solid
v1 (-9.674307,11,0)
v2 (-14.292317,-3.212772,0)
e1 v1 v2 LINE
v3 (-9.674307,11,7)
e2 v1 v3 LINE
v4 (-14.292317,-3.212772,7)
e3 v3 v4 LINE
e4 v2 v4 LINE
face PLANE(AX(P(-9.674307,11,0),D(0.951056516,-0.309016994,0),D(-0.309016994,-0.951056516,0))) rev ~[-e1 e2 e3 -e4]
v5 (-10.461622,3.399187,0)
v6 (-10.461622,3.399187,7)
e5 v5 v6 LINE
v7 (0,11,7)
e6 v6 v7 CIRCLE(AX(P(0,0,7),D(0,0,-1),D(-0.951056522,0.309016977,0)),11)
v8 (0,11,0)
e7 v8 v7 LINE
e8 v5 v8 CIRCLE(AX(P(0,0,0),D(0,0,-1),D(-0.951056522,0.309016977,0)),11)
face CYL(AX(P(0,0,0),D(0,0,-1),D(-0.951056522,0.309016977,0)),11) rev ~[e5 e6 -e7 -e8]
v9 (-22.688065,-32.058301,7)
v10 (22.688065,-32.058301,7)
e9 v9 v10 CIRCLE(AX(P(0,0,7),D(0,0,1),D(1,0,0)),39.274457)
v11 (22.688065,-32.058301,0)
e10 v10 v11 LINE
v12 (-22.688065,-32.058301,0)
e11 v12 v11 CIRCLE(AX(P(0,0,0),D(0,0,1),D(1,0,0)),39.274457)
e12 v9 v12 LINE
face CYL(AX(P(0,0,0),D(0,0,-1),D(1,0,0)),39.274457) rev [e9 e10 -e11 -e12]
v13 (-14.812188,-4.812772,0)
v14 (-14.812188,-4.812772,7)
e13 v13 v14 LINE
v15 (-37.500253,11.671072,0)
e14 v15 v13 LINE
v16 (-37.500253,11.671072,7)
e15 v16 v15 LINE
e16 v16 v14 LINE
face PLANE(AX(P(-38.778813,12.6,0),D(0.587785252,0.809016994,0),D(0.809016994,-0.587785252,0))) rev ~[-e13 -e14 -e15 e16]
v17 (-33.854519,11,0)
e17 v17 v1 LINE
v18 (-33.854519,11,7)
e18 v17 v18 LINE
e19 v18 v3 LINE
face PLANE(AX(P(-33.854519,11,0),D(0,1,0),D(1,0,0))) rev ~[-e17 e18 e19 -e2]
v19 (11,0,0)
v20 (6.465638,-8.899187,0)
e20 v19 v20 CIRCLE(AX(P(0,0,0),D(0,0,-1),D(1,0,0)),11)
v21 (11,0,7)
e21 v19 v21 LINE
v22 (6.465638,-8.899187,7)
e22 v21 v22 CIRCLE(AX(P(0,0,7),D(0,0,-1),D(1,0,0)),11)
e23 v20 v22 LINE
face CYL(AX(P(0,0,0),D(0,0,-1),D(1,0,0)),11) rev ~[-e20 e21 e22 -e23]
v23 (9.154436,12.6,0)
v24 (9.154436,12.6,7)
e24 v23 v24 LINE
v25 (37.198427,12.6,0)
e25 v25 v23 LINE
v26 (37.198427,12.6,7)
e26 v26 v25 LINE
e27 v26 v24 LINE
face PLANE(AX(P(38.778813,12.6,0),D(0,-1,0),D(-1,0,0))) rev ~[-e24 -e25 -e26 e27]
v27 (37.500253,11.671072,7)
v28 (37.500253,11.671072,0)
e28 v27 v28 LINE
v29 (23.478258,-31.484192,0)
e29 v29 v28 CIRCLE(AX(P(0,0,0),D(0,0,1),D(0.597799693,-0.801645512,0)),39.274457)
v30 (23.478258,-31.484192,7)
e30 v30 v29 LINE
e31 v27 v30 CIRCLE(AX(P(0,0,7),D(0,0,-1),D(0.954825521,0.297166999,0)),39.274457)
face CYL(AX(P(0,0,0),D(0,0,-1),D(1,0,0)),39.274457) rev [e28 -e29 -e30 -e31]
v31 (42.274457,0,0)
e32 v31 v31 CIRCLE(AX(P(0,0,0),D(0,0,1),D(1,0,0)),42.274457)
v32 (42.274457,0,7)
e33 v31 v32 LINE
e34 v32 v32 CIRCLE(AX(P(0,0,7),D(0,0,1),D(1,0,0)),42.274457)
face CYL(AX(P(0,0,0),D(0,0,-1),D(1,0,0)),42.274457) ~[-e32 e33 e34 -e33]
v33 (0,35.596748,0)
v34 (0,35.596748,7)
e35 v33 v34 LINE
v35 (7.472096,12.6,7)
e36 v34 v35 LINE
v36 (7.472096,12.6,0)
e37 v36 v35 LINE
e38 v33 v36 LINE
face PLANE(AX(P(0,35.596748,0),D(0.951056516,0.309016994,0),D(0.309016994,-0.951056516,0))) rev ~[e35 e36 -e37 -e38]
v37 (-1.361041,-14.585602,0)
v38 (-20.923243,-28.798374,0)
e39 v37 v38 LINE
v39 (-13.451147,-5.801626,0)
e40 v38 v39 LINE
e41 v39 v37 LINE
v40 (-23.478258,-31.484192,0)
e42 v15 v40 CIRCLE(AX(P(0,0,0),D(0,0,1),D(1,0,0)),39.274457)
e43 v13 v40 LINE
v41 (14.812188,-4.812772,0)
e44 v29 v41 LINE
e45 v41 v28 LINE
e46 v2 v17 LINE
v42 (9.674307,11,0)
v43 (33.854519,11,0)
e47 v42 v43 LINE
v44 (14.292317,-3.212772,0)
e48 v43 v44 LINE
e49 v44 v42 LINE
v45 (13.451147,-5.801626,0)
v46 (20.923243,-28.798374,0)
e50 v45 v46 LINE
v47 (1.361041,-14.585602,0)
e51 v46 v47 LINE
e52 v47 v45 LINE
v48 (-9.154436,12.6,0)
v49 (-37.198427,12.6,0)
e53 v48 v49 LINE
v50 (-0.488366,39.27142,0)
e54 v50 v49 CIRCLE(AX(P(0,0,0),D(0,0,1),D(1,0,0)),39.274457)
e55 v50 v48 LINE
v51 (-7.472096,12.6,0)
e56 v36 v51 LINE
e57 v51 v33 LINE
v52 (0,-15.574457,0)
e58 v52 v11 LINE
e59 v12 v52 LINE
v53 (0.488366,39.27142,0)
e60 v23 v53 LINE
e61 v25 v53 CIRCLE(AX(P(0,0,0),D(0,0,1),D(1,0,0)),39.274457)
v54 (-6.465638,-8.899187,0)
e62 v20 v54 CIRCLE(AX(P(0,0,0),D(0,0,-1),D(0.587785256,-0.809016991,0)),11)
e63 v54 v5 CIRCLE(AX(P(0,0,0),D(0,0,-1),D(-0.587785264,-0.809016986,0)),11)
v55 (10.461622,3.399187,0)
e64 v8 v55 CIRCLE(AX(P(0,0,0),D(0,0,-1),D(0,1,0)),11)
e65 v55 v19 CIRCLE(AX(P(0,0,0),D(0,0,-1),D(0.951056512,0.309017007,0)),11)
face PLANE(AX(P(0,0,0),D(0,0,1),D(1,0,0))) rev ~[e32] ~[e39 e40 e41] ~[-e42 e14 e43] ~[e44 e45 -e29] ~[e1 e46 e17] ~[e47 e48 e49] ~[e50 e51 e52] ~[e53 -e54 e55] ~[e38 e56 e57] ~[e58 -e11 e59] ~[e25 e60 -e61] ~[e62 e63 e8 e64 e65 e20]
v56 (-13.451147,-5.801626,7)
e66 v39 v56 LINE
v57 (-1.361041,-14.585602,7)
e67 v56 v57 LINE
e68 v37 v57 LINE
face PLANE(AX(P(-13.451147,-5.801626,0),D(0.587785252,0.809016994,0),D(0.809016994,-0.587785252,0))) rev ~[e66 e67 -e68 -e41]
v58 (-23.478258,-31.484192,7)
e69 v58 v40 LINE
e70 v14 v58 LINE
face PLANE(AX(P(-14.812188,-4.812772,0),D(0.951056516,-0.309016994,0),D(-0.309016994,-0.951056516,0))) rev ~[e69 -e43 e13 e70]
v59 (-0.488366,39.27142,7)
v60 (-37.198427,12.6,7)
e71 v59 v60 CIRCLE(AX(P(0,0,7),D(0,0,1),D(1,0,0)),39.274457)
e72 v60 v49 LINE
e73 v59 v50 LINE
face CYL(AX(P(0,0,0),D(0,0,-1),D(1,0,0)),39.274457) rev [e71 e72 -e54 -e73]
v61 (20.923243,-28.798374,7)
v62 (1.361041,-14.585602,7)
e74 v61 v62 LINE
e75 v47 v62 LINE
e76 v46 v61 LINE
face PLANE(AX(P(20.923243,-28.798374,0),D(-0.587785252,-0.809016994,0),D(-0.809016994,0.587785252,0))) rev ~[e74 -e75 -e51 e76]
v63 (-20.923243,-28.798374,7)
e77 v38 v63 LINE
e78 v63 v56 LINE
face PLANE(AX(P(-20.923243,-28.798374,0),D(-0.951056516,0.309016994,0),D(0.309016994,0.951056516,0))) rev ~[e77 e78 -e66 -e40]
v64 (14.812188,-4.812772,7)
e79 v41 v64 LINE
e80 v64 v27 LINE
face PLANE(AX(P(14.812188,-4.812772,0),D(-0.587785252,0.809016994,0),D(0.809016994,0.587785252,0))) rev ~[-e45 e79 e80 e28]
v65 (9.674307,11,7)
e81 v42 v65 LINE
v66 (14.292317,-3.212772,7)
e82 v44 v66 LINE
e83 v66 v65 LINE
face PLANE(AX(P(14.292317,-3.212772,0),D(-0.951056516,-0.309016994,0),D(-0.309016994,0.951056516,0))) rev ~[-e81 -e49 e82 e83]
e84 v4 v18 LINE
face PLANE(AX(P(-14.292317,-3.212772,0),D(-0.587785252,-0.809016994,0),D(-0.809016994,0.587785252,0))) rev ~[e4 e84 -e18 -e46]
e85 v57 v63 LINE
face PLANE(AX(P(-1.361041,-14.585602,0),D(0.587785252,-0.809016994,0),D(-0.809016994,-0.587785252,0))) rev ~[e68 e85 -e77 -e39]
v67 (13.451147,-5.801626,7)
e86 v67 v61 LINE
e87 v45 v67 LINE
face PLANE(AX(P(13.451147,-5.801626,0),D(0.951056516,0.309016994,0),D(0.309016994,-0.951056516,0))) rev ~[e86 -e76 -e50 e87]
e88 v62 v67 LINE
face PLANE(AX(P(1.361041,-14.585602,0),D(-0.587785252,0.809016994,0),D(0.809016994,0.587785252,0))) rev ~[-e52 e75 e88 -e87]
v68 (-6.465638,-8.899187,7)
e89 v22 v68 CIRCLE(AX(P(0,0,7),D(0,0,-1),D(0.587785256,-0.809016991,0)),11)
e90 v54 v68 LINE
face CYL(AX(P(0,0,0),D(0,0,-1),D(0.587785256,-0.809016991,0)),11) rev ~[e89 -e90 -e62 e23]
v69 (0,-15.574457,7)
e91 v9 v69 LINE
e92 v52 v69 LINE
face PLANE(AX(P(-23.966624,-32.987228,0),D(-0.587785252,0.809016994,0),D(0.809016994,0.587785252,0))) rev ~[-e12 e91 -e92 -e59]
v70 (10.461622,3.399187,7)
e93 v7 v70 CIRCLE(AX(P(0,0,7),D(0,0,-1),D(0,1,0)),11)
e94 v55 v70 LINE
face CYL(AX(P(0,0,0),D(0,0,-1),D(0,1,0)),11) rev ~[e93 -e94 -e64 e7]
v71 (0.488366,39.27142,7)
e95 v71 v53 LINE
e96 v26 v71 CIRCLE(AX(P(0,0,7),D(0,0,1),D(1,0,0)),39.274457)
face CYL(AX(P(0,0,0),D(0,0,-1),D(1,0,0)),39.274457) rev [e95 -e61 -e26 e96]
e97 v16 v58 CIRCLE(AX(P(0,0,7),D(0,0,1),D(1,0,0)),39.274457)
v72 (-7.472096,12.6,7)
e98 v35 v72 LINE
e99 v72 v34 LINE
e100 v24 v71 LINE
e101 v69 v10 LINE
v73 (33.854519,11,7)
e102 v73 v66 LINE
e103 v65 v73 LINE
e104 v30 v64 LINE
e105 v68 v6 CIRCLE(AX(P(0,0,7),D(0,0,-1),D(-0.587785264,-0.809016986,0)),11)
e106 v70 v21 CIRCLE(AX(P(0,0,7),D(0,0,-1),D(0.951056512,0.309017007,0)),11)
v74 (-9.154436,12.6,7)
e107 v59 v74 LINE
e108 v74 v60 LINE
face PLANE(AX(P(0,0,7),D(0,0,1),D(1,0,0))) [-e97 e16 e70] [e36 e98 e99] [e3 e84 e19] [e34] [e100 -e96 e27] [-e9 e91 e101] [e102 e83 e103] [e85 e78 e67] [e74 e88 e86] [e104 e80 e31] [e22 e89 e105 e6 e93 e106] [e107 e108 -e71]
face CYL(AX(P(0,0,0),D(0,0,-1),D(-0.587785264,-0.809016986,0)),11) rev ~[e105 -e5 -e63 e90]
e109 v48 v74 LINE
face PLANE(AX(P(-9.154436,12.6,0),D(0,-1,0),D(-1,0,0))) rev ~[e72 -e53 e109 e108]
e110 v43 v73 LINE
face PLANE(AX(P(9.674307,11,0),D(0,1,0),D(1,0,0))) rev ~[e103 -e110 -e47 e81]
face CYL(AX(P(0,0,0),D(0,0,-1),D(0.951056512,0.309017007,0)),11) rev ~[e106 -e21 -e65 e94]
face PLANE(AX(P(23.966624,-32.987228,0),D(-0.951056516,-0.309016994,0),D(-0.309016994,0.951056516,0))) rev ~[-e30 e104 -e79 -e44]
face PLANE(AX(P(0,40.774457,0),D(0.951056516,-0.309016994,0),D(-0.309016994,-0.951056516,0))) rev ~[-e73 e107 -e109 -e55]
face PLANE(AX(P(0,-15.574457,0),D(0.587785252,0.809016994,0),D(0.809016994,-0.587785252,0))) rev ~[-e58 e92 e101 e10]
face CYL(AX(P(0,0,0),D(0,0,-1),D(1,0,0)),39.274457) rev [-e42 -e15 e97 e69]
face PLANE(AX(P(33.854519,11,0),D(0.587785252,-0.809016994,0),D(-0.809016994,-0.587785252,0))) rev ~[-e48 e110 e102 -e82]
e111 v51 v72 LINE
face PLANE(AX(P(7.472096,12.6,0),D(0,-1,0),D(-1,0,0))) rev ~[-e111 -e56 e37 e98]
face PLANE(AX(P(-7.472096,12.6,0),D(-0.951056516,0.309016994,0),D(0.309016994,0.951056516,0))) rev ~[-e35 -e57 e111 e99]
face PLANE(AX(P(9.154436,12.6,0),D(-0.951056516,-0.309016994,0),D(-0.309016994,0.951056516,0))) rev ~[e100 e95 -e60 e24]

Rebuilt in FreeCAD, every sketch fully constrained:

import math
import FreeCAD as App
import Part
import Sketcher

V = App.Vector

doc = App.newDocument("Part")
params = doc.addObject("Spreadsheet::Sheet", "Params")
for row, (alias, value) in enumerate([
    ("sketch1_radius", "11 mm"),
    ("pad1_length", "7 mm"),
], start=1):
    params.set(f"A{row}", alias)
    params.set(f"B{row}", "=" + value)
    params.setAlias(f"B{row}", alias)

body = doc.addObject("PartDesign::Body", "Body")

# Sketch on XY plane
sketch1 = doc.addObject("Sketcher::SketchObject", "Sketch")
body.addObject(sketch1)
sketch1.AttachmentSupport = (doc.XY_Plane, [""])
sketch1.MapMode = "FlatFace"
sketch1.addGeometry(Part.Circle(V(0, 0, 0), V(0, 0, 1), 42.274457), False)
sketch1.addGeometry(Part.ArcOfCircle(Part.Circle(V(0, 0, 0), V(0, 0, 1), 39.274457), math.radians(-53.287526), math.radians(17.287526)), False)
sketch1.addGeometry(Part.LineSegment(V(23.478258, -31.484192, 0), V(14.812188, -4.812772, 0)), False)
sketch1.addGeometry(Part.LineSegment(V(14.812188, -4.812772, 0), V(37.500253, 11.671072, 0)), False)
sketch1.addGeometry(Part.ArcOfCircle(Part.Circle(V(0, 0, 0), V(0, 0, 1), 39.274457), math.radians(18.712474), math.radians(89.287526)), False)
sketch1.addGeometry(Part.LineSegment(V(37.198427, 12.6, 0), V(9.154436, 12.6, 0)), False)
sketch1.addGeometry(Part.LineSegment(V(9.154436, 12.6, 0), V(0.488366, 39.27142, 0)), False)
sketch1.addGeometry(Part.ArcOfCircle(Part.Circle(V(0, 0, 0), V(0, 0, 1), 39.274457), math.radians(90.712474), math.radians(161.287526)), False)
sketch1.addGeometry(Part.LineSegment(V(-0.488366, 39.27142, 0), V(-9.154436, 12.6, 0)), False)
sketch1.addGeometry(Part.LineSegment(V(-9.154436, 12.6, 0), V(-37.198427, 12.6, 0)), False)
sketch1.addGeometry(Part.ArcOfCircle(Part.Circle(V(0, 0, 0), V(0, 0, 1), 39.274457), math.radians(162.712474), math.radians(233.287526)), False)
sketch1.addGeometry(Part.LineSegment(V(-37.500253, 11.671072, 0), V(-14.812188, -4.812772, 0)), False)
sketch1.addGeometry(Part.LineSegment(V(-14.812188, -4.812772, 0), V(-23.478258, -31.484192, 0)), False)
sketch1.addGeometry(Part.ArcOfCircle(Part.Circle(V(0, 0, 0), V(0, 0, 1), 39.274457), math.radians(-125.287526), math.radians(-54.712474)), False)
sketch1.addGeometry(Part.LineSegment(V(-22.688065, -32.058301, 0), V(0, -15.574457, 0)), False)
sketch1.addGeometry(Part.LineSegment(V(0, -15.574457, 0), V(22.688065, -32.058301, 0)), False)
sketch1.addGeometry(Part.LineSegment(V(7.472096, 12.6, 0), V(-7.472096, 12.6, 0)), False)
sketch1.addGeometry(Part.LineSegment(V(-7.472096, 12.6, 0), V(0, 35.596748, 0)), False)
sketch1.addGeometry(Part.LineSegment(V(0, 35.596748, 0), V(7.472096, 12.6, 0)), False)
sketch1.addGeometry(Part.LineSegment(V(-13.451147, -5.801626, 0), V(-1.361041, -14.585602, 0)), False)
sketch1.addGeometry(Part.LineSegment(V(-1.361041, -14.585602, 0), V(-20.923243, -28.798374, 0)), False)
sketch1.addGeometry(Part.LineSegment(V(-20.923243, -28.798374, 0), V(-13.451147, -5.801626, 0)), False)
sketch1.addGeometry(Part.LineSegment(V(20.923243, -28.798374, 0), V(1.361041, -14.585602, 0)), False)
sketch1.addGeometry(Part.LineSegment(V(1.361041, -14.585602, 0), V(13.451147, -5.801626, 0)), False)
sketch1.addGeometry(Part.LineSegment(V(13.451147, -5.801626, 0), V(20.923243, -28.798374, 0)), False)
sketch1.addGeometry(Part.ArcOfCircle(Part.Circle(V(0, 0, 0), V(0, 0, 1), 11), math.radians(162.000001), math.radians(233.999999)), False)
sketch1.addGeometry(Part.ArcOfCircle(Part.Circle(V(0, 0, 0), V(0, 0, 1), 11), math.radians(90), math.radians(162.000001)), False)
sketch1.addGeometry(Part.ArcOfCircle(Part.Circle(V(0, 0, 0), V(0, 0, 1), 11), math.radians(18.000001), math.radians(90)), False)
sketch1.addGeometry(Part.ArcOfCircle(Part.Circle(V(0, 0, 0), V(0, 0, 1), 11), math.radians(0), math.radians(18.000001)), False)
sketch1.addGeometry(Part.ArcOfCircle(Part.Circle(V(0, 0, 0), V(0, 0, 1), 11), math.radians(-54), math.radians(0)), False)
sketch1.addGeometry(Part.ArcOfCircle(Part.Circle(V(0, 0, 0), V(0, 0, 1), 11), math.radians(-126.000001), math.radians(-54)), False)
sketch1.addGeometry(Part.LineSegment(V(-33.854519, 11, 0), V(-9.674307, 11, 0)), False)
sketch1.addGeometry(Part.LineSegment(V(-9.674307, 11, 0), V(-14.292317, -3.212772, 0)), False)
sketch1.addGeometry(Part.LineSegment(V(-14.292317, -3.212772, 0), V(-33.854519, 11, 0)), False)
sketch1.addGeometry(Part.LineSegment(V(33.854519, 11, 0), V(14.292317, -3.212772, 0)), False)
sketch1.addGeometry(Part.LineSegment(V(14.292317, -3.212772, 0), V(9.674307, 11, 0)), False)
sketch1.addGeometry(Part.LineSegment(V(9.674307, 11, 0), V(33.854519, 11, 0)), False)
sketch1.addConstraint(Sketcher.Constraint("Coincident", 1, 1, 2, 1))
sketch1.addConstraint(Sketcher.Constraint("Coincident", 2, 2, 3, 1))
sketch1.addConstraint(Sketcher.Constraint("Coincident", 3, 2, 1, 2))
sketch1.addConstraint(Sketcher.Constraint("Coincident", 4, 1, 5, 1))
sketch1.addConstraint(Sketcher.Constraint("Coincident", 5, 2, 6, 1))
sketch1.addConstraint(Sketcher.Constraint("Coincident", 6, 2, 4, 2))
sketch1.addConstraint(Sketcher.Constraint("Coincident", 7, 1, 8, 1))
sketch1.addConstraint(Sketcher.Constraint("Coincident", 8, 2, 9, 1))
sketch1.addConstraint(Sketcher.Constraint("Coincident", 9, 2, 7, 2))
sketch1.addConstraint(Sketcher.Constraint("Coincident", 10, 1, 11, 1))
sketch1.addConstraint(Sketcher.Constraint("Coincident", 11, 2, 12, 1))
sketch1.addConstraint(Sketcher.Constraint("Coincident", 12, 2, 10, 2))
sketch1.addConstraint(Sketcher.Constraint("Coincident", 13, 1, 14, 1))
sketch1.addConstraint(Sketcher.Constraint("Coincident", 14, 2, 15, 1))
sketch1.addConstraint(Sketcher.Constraint("Coincident", 15, 2, 13, 2))
sketch1.addConstraint(Sketcher.Constraint("Coincident", 16, 2, 17, 1))
sketch1.addConstraint(Sketcher.Constraint("Coincident", 17, 2, 18, 1))
sketch1.addConstraint(Sketcher.Constraint("Coincident", 18, 2, 16, 1))
sketch1.addConstraint(Sketcher.Constraint("Coincident", 19, 2, 20, 1))
sketch1.addConstraint(Sketcher.Constraint("Coincident", 20, 2, 21, 1))
sketch1.addConstraint(Sketcher.Constraint("Coincident", 21, 2, 19, 1))
sketch1.addConstraint(Sketcher.Constraint("Coincident", 22, 2, 23, 1))
sketch1.addConstraint(Sketcher.Constraint("Coincident", 23, 2, 24, 1))
sketch1.addConstraint(Sketcher.Constraint("Coincident", 24, 2, 22, 1))
sketch1.addConstraint(Sketcher.Constraint("Tangent", 25, 1, 26, 2))
sketch1.addConstraint(Sketcher.Constraint("Tangent", 26, 1, 27, 2))
sketch1.addConstraint(Sketcher.Constraint("Tangent", 27, 1, 28, 2))
sketch1.addConstraint(Sketcher.Constraint("Tangent", 28, 1, 29, 2))
sketch1.addConstraint(Sketcher.Constraint("Tangent", 29, 1, 30, 2))
sketch1.addConstraint(Sketcher.Constraint("Tangent", 30, 1, 25, 2))
sketch1.addConstraint(Sketcher.Constraint("Coincident", 31, 2, 32, 1))
sketch1.addConstraint(Sketcher.Constraint("Coincident", 32, 2, 33, 1))
sketch1.addConstraint(Sketcher.Constraint("Coincident", 33, 2, 31, 1))
sketch1.addConstraint(Sketcher.Constraint("Coincident", 34, 2, 35, 1))
sketch1.addConstraint(Sketcher.Constraint("Coincident", 35, 2, 36, 1))
sketch1.addConstraint(Sketcher.Constraint("Coincident", 36, 2, 34, 1))
sketch1.addConstraint(Sketcher.Constraint("Horizontal", 5))
sketch1.addConstraint(Sketcher.Constraint("Horizontal", 9))
sketch1.addConstraint(Sketcher.Constraint("Horizontal", 16))
sketch1.addConstraint(Sketcher.Constraint("Horizontal", 31))
sketch1.addConstraint(Sketcher.Constraint("Horizontal", 36))
sketch1.addConstraint(Sketcher.Constraint("Coincident", 0, 3, -1, 1))
sketch1.addConstraint(Sketcher.Constraint("Coincident", 1, 3, -1, 1))
sketch1.addConstraint(Sketcher.Constraint("Coincident", 4, 3, -1, 1))
sketch1.addConstraint(Sketcher.Constraint("Coincident", 7, 3, -1, 1))
sketch1.addConstraint(Sketcher.Constraint("Coincident", 10, 3, -1, 1))
sketch1.addConstraint(Sketcher.Constraint("Coincident", 13, 3, -1, 1))
sketch1.addConstraint(Sketcher.Constraint("Coincident", 25, 3, -1, 1))
sketch1.addConstraint(Sketcher.Constraint("Coincident", 27, 3, -1, 1))
sketch1.addConstraint(Sketcher.Constraint("Equal", 1, 4))
sketch1.addConstraint(Sketcher.Constraint("Equal", 4, 7))
sketch1.addConstraint(Sketcher.Constraint("Equal", 7, 10))
sketch1.addConstraint(Sketcher.Constraint("Equal", 10, 13))
sketch1.addConstraint(Sketcher.Constraint("Equal", 27, 28))
sketch1.addConstraint(Sketcher.Constraint("Symmetric", 5, 2, 8, 2, -2))
sketch1.addConstraint(Sketcher.Constraint("Symmetric", 2, 2, 11, 2, -2))
sketch1.addConstraint(Sketcher.Constraint("Symmetric", 19, 2, 22, 2, -2))
sketch1.addConstraint(Sketcher.Constraint("Symmetric", 21, 2, 23, 2, -2))
sketch1.addConstraint(Sketcher.Constraint("Symmetric", 20, 2, 24, 2, -2))
sketch1.addConstraint(Sketcher.Constraint("Symmetric", 32, 2, 34, 2, -2))
sketch1.addConstraint(Sketcher.Constraint("Symmetric", 31, 2, 35, 2, -2))
sketch1.addConstraint(Sketcher.Constraint("PointOnObject", 14, 2, -2))
sketch1.addConstraint(Sketcher.Constraint("PointOnObject", 17, 2, -2))
sketch1.addConstraint(Sketcher.Constraint("PointOnObject", 26, 1, -2))
sketch1.addConstraint(Sketcher.Constraint("PointOnObject", 28, 1, -1))
sketch1.addConstraint(Sketcher.Constraint("Parallel", 2, 6))
sketch1.addConstraint(Sketcher.Constraint("Parallel", 8, 12))
sketch1.addConstraint(Sketcher.Constraint("Parallel", 3, 14))
sketch1.addConstraint(Sketcher.Constraint("Parallel", 11, 15))
sketch1.addConstraint(Sketcher.Constraint("Parallel", 12, 17))
sketch1.addConstraint(Sketcher.Constraint("Parallel", 6, 18))
sketch1.addConstraint(Sketcher.Constraint("Parallel", 15, 19))
sketch1.addConstraint(Sketcher.Constraint("Parallel", 14, 20))
sketch1.addConstraint(Sketcher.Constraint("Parallel", 17, 21))
sketch1.addConstraint(Sketcher.Constraint("Parallel", 19, 22))
sketch1.addConstraint(Sketcher.Constraint("Parallel", 18, 24))
sketch1.addConstraint(Sketcher.Constraint("Parallel", 21, 32))
sketch1.addConstraint(Sketcher.Constraint("Parallel", 22, 33))
sketch1.addConstraint(Sketcher.Constraint("Parallel", 23, 34))
sketch1.addConstraint(Sketcher.Constraint("Horizontal", 9, 2, 16, 2))
sketch1.addConstraint(Sketcher.Constraint("Horizontal", 25, 1, 27, 1))
sketch1.addConstraint(Sketcher.Constraint("Horizontal", 29, 1, 30, 1))
sketch1.addConstraint(Sketcher.Constraint("Horizontal", 26, 1, 31, 2))
sketch1.addConstraint(Sketcher.Constraint("Equal", 2, 3))
sketch1.addConstraint(Sketcher.Constraint("Equal", 3, 6))
sketch1.addConstraint(Sketcher.Constraint("Equal", 12, 14))
sketch1.addConstraint(Sketcher.Constraint("Equal", 18, 20))
sketch1.addConstraint(Sketcher.Constraint("Equal", 20, 21))
sketch1.addConstraint(Sketcher.Constraint("Equal", 23, 32))
sketch1.addConstraint(Sketcher.Constraint("Equal", 24, 33))
sketch1.addConstraint(Sketcher.Constraint("Radius", 25, 11.0))
sketch1.addConstraint(Sketcher.Constraint("DistanceY", -1, 1, 4, 1, 12.6))
sketch1.addConstraint(Sketcher.Constraint("DistanceY", 11, 2, 32, 2, 1.6))
sketch1.addConstraint(Sketcher.Constraint("Diameter", 0, 84.548913))
sketch1.addConstraint(Sketcher.Constraint("Radius", 1, 39.274457))
sketch1.addConstraint(Sketcher.Constraint("DistanceX", 5, 2, 5, 1, 28.043991))
sketch1.addConstraint(Sketcher.Constraint("DistanceX", 19, 2, -1, 1, 1.361041))
sketch1.addConstraint(Sketcher.Constraint("DistanceX", 25, 1, -1, 1, 10.461622))
sketch1.addConstraint(Sketcher.Constraint("DistanceX", 33, 2, -1, 1, 33.854519))
sketch1.addConstraint(Sketcher.Constraint("DistanceX", 29, 1, 23, 2, 6.985509))
sketch1.addConstraint(Sketcher.Constraint("DistanceY", 29, 1, 23, 2, 3.097561))
sketch1.setExpression("Constraints[90]", "Params.sketch1_radius")
pad1 = doc.addObject("PartDesign::Pad", "Pad")
body.addObject(pad1)
pad1.Profile = sketch1
pad1.setExpression("Length", "Params.pad1_length")

doc.recompute()
